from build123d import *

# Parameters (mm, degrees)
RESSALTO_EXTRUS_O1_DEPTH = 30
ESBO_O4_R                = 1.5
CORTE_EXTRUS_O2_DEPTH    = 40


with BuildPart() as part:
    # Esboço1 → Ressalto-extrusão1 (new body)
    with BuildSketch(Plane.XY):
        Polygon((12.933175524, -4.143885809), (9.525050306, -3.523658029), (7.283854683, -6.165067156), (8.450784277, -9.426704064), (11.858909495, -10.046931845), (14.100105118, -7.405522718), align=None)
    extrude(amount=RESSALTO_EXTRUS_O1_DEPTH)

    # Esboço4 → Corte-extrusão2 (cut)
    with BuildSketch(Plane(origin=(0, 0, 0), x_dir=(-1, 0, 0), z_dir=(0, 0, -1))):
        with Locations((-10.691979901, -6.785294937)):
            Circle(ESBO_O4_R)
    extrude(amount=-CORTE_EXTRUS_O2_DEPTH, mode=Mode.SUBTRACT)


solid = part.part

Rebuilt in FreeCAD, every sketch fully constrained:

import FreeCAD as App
import Part
import Sketcher
from FreeCAD import Vector


def add_polygon(sketch, points):
    """Adds a closed chain of lines whose ends are joined by coincident constraints."""
    first, n = sketch.GeometryCount, len(points)
    for a, b in zip(points, points[1:] + points[:1]):
        sketch.addGeometry(Part.LineSegment(App.Vector(*a, 0), App.Vector(*b, 0)), False)
    for i in range(n):
        sketch.addConstraint(Sketcher.Constraint("Coincident", first + i, 2, first + (i + 1) % n, 1))

doc = App.newDocument("Part")
body = doc.addObject("PartDesign::Body", "Body")

# Sketch on XY plane
sketch1 = body.newObject("Sketcher::SketchObject", "Sketch")
sketch1.AttachmentSupport = (doc.getObject("XY_Plane"), [""])
sketch1.MapMode = "FlatFace"
add_polygon(sketch1, [(12.9, -4.1), (9.5, -3.5), (7.3, -6.2), (8.5, -9.4), (11.9, -10), (14.1, -7.4)])  # lines 0-5
sketch1.addConstraint([
    Sketcher.Constraint("Parallel", 0, 3),
    Sketcher.Constraint("Parallel", 1, 4),
    Sketcher.Constraint("Parallel", 2, 5),
    Sketcher.Constraint("Equal", 0, 1),
    Sketcher.Constraint("Equal", 1, 2),
    Sketcher.Constraint("Equal", 2, 3),
    Sketcher.Constraint("Distance", 0, 3.464102),
    Sketcher.Constraint("DistanceX", -1, 1, 0, 2, 9.52505),
    Sketcher.Constraint("DistanceY", 0, 2, -1, 1, 3.523658),
    Sketcher.Constraint("DistanceX", -1, 1, 3, 2, 11.858909),
    Sketcher.Constraint("DistanceY", 3, 2, -1, 1, 10.046932),
    Sketcher.Constraint("DistanceY", 1, 2, 0, 2, 2.641409),
])
pad1 = body.newObject("PartDesign::Pad", "Pad")
pad1.Profile = sketch1
pad1.Length = 30

# Sketch on XY plane
sketch2 = body.newObject("Sketcher::SketchObject", "Sketch001")
sketch2.AttachmentSupport = (doc.getObject("XY_Plane"), [""])
sketch2.MapMode = "FlatFace"
sketch2.addGeometry(Part.Circle(Vector(10.7, -6.8, 0), Vector(0, 0, 1), 1.5), False)
sketch2.addConstraint([
    Sketcher.Constraint("Diameter", 0, 3.0),
    Sketcher.Constraint("DistanceX", -1, 1, 0, 3, 10.69198),
    Sketcher.Constraint("DistanceY", 0, 3, -1, 1, 6.785295),
])
pocket1 = body.newObject("PartDesign::Pocket", "Pocket")
pocket1.Profile = sketch2
pocket1.Length = 40
pocket1.Reversed = True

doc.recompute()
